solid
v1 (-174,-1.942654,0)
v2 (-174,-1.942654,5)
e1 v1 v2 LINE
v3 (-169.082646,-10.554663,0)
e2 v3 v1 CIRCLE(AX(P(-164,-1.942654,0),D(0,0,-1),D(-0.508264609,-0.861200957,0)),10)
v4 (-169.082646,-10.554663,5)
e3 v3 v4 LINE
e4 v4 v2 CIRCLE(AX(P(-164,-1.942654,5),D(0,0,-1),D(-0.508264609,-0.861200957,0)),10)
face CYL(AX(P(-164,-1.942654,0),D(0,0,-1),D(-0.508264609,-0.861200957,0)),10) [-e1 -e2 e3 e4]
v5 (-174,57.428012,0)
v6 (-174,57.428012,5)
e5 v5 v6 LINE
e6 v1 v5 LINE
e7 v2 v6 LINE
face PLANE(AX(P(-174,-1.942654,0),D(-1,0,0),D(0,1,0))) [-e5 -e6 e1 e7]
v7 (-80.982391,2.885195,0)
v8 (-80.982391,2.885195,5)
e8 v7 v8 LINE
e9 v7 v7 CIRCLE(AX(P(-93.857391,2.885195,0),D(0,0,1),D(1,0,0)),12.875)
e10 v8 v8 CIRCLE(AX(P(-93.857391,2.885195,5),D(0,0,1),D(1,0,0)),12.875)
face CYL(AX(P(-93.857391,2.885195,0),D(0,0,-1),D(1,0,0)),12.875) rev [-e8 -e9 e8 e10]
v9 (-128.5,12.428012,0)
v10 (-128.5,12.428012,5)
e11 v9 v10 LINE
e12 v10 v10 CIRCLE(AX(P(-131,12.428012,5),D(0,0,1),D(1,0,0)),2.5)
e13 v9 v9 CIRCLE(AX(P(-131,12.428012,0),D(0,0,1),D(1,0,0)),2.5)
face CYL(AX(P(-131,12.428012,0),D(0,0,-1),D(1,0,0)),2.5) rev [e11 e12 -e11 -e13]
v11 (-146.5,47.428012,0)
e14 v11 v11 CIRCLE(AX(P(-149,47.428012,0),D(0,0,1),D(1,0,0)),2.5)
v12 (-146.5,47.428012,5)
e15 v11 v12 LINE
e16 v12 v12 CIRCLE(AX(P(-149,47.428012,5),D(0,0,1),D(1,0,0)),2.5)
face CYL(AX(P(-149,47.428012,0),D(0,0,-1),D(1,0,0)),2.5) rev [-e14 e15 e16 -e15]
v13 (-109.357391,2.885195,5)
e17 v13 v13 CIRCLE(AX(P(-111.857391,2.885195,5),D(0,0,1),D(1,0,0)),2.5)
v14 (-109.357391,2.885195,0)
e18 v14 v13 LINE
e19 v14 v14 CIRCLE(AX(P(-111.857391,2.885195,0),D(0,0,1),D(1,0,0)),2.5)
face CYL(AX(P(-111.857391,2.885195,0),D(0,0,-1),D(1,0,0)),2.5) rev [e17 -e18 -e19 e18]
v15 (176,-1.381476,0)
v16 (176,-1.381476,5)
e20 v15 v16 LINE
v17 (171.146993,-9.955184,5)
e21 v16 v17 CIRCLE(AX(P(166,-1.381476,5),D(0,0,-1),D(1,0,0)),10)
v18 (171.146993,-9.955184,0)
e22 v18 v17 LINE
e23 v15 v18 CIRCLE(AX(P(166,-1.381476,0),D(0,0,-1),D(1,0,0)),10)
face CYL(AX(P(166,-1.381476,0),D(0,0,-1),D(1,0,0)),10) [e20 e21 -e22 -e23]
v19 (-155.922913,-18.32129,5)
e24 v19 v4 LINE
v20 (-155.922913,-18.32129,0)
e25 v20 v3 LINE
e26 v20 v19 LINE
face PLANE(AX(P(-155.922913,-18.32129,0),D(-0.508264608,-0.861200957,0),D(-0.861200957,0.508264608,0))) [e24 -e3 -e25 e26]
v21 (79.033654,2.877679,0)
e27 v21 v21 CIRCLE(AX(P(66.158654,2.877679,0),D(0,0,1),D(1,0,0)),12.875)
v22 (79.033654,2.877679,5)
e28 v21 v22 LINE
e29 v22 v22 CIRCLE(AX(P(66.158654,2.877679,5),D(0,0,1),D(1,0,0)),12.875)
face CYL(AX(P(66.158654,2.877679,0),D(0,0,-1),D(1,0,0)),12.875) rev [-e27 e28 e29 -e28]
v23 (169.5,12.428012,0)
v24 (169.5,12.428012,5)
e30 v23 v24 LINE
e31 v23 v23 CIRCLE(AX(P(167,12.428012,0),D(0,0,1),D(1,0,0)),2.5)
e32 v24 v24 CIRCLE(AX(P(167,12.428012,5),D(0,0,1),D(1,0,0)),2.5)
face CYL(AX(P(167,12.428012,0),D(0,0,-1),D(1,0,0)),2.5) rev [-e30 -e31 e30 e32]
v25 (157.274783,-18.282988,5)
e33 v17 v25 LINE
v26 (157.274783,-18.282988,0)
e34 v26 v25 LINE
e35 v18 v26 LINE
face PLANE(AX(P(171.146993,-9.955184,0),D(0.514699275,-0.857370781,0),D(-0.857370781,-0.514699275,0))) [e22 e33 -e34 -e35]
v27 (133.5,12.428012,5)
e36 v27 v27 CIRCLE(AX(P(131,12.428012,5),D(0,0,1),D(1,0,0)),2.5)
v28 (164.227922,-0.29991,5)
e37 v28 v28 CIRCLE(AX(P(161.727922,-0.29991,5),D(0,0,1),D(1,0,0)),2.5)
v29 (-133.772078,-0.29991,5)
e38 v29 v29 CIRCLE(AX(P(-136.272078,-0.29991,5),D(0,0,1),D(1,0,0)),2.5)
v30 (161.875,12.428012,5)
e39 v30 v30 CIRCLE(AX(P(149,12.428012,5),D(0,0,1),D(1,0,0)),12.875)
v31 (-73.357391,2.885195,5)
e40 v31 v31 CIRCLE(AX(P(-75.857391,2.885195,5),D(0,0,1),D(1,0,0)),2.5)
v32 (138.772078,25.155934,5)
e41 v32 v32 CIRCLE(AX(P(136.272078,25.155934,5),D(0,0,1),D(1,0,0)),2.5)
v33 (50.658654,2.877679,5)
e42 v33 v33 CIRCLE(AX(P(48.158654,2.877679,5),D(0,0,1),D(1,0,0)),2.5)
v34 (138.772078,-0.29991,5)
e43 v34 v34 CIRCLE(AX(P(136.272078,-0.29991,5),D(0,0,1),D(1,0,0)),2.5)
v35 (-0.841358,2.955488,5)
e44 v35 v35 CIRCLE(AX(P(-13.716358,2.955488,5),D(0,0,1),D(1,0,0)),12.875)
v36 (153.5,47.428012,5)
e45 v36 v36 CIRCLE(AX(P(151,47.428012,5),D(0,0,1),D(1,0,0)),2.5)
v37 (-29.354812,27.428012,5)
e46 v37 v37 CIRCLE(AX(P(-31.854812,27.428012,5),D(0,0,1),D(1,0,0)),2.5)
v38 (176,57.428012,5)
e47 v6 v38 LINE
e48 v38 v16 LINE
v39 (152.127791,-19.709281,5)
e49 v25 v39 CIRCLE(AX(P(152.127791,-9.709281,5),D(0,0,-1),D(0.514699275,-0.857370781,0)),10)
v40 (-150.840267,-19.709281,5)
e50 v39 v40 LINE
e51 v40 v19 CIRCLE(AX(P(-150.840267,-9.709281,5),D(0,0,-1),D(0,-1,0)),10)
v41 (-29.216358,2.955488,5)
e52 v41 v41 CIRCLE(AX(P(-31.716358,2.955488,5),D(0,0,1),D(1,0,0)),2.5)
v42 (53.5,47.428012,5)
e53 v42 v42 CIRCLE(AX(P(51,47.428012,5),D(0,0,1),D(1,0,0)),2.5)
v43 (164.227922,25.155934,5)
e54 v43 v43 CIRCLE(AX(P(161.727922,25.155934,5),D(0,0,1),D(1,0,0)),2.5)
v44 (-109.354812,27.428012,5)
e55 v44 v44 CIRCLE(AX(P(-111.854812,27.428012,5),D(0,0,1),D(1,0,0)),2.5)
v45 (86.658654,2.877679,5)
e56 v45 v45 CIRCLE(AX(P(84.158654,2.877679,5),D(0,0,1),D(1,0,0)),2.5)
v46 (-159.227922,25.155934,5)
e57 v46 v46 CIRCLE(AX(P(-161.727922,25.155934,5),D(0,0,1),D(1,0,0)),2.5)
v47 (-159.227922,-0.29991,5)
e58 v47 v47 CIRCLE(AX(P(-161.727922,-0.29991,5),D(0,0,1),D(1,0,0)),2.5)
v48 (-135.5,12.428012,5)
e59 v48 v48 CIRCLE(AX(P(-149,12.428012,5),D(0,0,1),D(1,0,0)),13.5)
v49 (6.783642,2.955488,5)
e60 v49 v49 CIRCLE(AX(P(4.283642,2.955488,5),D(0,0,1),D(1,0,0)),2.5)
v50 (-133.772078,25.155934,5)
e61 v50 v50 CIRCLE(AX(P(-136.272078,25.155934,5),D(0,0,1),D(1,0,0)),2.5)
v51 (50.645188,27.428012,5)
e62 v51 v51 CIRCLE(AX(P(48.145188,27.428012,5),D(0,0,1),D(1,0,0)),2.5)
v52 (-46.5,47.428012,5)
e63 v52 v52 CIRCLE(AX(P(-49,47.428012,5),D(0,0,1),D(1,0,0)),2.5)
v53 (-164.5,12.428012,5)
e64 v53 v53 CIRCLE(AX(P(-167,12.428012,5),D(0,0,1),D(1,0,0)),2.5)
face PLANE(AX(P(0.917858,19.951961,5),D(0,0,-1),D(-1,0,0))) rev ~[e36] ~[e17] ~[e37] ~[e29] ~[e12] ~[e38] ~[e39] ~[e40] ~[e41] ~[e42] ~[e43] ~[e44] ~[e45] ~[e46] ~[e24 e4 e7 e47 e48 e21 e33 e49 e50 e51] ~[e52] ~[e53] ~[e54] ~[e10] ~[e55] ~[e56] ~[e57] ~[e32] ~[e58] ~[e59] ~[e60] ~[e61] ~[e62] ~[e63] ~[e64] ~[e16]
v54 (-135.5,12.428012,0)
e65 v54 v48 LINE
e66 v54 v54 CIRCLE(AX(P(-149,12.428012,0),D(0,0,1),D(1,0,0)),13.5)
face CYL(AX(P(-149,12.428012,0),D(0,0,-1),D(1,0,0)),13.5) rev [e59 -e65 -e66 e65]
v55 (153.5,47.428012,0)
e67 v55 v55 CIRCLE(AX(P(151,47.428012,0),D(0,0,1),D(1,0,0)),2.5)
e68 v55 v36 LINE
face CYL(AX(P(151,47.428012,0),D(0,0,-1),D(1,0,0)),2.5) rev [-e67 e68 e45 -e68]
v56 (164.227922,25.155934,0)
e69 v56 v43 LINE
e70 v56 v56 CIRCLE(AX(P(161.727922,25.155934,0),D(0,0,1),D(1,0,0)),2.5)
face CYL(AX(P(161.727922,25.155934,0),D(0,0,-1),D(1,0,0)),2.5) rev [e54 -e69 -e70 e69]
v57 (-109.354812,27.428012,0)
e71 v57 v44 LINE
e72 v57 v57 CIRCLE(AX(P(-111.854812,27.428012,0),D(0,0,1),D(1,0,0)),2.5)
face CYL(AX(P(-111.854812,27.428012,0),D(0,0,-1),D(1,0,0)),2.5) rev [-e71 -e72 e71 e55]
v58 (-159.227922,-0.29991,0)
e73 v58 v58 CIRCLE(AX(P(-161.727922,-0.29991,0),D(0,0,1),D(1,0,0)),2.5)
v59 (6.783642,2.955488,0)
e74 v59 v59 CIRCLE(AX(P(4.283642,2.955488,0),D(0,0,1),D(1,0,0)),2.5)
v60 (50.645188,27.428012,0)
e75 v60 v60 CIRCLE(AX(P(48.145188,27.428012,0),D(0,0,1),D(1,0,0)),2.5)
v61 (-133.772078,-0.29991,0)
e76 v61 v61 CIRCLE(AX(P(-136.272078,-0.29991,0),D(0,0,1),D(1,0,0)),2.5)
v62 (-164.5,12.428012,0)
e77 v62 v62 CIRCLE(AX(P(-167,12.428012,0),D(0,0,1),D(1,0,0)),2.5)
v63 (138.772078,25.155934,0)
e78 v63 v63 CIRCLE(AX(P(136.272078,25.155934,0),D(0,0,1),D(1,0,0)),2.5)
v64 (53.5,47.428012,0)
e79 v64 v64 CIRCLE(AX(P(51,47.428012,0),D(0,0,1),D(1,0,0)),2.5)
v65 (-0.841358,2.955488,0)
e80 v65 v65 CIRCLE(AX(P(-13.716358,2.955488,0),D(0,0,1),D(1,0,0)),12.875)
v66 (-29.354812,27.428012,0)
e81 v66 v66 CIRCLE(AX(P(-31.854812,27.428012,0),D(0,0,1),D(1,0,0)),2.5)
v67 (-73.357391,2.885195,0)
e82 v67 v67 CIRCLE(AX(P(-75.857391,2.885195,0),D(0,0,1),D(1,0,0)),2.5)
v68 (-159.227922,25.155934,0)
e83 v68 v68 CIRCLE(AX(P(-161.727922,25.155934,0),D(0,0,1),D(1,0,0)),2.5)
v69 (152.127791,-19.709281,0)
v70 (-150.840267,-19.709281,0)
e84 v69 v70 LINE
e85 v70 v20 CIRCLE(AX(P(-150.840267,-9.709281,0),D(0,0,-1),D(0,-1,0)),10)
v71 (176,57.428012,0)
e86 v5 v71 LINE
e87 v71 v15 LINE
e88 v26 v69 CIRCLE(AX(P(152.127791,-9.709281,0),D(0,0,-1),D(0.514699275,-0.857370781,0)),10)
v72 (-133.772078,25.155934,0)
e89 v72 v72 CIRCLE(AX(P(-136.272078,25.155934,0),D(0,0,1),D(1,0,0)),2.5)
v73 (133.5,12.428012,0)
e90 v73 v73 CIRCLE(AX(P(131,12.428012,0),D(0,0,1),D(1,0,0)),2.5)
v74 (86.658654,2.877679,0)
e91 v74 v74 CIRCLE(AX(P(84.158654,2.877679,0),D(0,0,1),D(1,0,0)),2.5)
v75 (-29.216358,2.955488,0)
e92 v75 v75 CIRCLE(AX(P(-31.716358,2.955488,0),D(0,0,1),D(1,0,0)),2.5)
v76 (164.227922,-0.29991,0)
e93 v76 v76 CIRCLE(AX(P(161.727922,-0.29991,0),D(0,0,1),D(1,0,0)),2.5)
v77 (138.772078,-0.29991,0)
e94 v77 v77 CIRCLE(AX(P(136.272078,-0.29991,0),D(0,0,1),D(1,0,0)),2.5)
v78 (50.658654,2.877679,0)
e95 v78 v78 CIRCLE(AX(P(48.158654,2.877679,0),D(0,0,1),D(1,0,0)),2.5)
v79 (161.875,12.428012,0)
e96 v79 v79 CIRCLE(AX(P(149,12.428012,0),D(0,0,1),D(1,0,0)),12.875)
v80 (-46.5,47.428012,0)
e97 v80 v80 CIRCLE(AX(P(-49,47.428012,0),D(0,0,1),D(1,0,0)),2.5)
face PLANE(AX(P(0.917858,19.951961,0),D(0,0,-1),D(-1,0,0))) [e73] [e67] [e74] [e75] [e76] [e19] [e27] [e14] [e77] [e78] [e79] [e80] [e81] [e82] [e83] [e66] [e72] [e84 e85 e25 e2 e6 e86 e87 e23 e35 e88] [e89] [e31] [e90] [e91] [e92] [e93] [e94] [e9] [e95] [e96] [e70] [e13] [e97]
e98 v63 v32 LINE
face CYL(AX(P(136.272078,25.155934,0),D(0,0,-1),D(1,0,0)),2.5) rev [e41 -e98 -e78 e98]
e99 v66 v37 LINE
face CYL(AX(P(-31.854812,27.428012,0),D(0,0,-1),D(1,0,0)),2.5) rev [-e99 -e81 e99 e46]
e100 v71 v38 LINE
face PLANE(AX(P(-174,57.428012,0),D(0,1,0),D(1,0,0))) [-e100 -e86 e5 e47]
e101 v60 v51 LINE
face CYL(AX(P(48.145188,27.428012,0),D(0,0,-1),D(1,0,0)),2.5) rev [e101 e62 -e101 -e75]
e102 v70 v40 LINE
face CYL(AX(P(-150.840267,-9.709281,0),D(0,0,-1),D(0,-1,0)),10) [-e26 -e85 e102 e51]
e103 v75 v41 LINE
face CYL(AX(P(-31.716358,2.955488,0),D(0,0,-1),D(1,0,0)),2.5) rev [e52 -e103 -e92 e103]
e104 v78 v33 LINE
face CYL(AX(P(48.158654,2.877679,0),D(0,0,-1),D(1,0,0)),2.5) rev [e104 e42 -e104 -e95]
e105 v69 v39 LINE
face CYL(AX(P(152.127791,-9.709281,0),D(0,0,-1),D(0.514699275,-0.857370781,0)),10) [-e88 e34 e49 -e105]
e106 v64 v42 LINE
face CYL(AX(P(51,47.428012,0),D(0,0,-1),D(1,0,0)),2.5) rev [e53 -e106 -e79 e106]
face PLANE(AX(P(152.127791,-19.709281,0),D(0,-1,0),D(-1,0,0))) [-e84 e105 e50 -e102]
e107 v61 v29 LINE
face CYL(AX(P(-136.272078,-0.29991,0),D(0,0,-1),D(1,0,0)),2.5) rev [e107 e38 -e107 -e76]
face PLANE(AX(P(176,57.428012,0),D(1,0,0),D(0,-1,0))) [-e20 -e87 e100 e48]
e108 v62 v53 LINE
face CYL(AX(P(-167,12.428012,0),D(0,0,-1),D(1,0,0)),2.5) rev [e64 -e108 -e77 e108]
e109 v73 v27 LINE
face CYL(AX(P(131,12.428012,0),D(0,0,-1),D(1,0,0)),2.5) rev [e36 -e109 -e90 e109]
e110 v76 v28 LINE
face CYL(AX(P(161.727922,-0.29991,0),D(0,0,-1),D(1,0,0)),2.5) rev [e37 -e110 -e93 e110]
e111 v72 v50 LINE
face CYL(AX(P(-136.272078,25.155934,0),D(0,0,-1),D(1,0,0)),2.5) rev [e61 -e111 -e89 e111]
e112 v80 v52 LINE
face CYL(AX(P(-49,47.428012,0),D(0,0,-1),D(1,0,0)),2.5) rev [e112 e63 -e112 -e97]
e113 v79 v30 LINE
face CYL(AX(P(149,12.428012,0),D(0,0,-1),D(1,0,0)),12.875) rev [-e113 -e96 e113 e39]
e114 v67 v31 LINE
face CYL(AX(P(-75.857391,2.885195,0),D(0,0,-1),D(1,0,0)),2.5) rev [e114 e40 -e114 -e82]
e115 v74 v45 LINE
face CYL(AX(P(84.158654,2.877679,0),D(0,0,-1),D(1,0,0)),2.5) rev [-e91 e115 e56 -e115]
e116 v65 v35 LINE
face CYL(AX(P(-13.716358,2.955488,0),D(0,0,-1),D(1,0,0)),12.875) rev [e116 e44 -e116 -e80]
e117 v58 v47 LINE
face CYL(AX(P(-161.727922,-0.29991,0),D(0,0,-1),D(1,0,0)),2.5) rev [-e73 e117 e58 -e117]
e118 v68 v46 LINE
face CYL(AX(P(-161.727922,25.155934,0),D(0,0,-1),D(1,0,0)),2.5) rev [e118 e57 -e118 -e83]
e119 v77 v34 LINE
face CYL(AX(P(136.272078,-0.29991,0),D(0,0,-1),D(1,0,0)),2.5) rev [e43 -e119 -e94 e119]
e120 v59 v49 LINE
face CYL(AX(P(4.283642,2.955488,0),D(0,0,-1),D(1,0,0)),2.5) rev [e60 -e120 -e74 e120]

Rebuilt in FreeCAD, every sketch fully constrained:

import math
import FreeCAD as App
import Part
import Sketcher

V = App.Vector

doc = App.newDocument("Part")
body = doc.addObject("PartDesign::Body", "Body")

# Sketch on XY plane
sketch1 = doc.addObject("Sketcher::SketchObject", "Sketch")
body.addObject(sketch1)
sketch1.AttachmentSupport = (doc.XY_Plane, [""])
sketch1.MapMode = "FlatFace"
sketch1.addGeometry([
    Part.LineSegment(V(176, 57.428012, 0), V(-174, 57.428012, 0)),  # 0
    Part.LineSegment(V(-174, 57.428012, 0), V(-174, -1.942654, 0)),  # 1
    Part.ArcOfCircle(Part.Circle(V(-164, -1.942654, 0), V(0, 0, 1), 10), math.radians(-180), math.radians(-120.548305)),  # 2
    Part.LineSegment(V(-169.082646, -10.554663, 0), V(-155.922913, -18.32129, 0)),  # 3
    Part.ArcOfCircle(Part.Circle(V(-150.840267, -9.709281, 0), V(0, 0, 1), 10), math.radians(-120.548305), math.radians(-90)),  # 4
    Part.LineSegment(V(-150.840267, -19.709281, 0), V(152.127791, -19.709281, 0)),  # 5
    Part.ArcOfCircle(Part.Circle(V(152.127791, -9.709281, 0), V(0, 0, 1), 10), math.radians(-90), math.radians(-59.022644)),  # 6
    Part.LineSegment(V(157.274783, -18.282988, 0), V(171.146993, -9.955184, 0)),  # 7
    Part.ArcOfCircle(Part.Circle(V(166, -1.381476, 0), V(0, 0, 1), 10), math.radians(-59.022644), math.radians(0)),  # 8
    Part.LineSegment(V(176, -1.381476, 0), V(176, 57.428012, 0)),  # 9
    Part.Circle(V(161.727922, -0.29991, 0), V(0, 0, 1), 2.5),  # 10
    Part.Circle(V(136.272078, -0.29991, 0), V(0, 0, 1), 2.5),  # 11
    Part.Circle(V(84.158654, 2.877679, 0), V(0, 0, 1), 2.5),  # 12
    Part.Circle(V(66.158654, 2.877679, 0), V(0, 0, 1), 12.875),  # 13
    Part.Circle(V(48.158654, 2.877679, 0), V(0, 0, 1), 2.5),  # 14
    Part.Circle(V(4.283642, 2.955488, 0), V(0, 0, 1), 2.5),  # 15
    Part.Circle(V(167, 12.428012, 0), V(0, 0, 1), 2.5),  # 16
    Part.Circle(V(149, 12.428012, 0), V(0, 0, 1), 12.875),  # 17
    Part.Circle(V(131, 12.428012, 0), V(0, 0, 1), 2.5),  # 18
    Part.Circle(V(-13.716358, 2.955488, 0), V(0, 0, 1), 12.875),  # 19
    Part.Circle(V(-31.716358, 2.955488, 0), V(0, 0, 1), 2.5),  # 20
    Part.Circle(V(-75.857391, 2.885195, 0), V(0, 0, 1), 2.5),  # 21
    Part.Circle(V(-93.857391, 2.885195, 0), V(0, 0, 1), 12.875),  # 22
    Part.Circle(V(-111.857391, 2.885195, 0), V(0, 0, 1), 2.5),  # 23
    Part.Circle(V(-136.272078, -0.29991, 0), V(0, 0, 1), 2.5),  # 24
    Part.Circle(V(-161.727922, -0.29991, 0), V(0, 0, 1), 2.5),  # 25
    Part.Circle(V(-131, 12.428012, 0), V(0, 0, 1), 2.5),  # 26
    Part.Circle(V(-149, 12.428012, 0), V(0, 0, 1), 13.5),  # 27
    Part.Circle(V(-167, 12.428012, 0), V(0, 0, 1), 2.5),  # 28
    Part.Circle(V(161.727922, 25.155934, 0), V(0, 0, 1), 2.5),  # 29
    Part.Circle(V(136.272078, 25.155934, 0), V(0, 0, 1), 2.5),  # 30
    Part.Circle(V(48.145188, 27.428012, 0), V(0, 0, 1), 2.5),  # 31
    Part.Circle(V(151, 47.428012, 0), V(0, 0, 1), 2.5),  # 32
    Part.Circle(V(51, 47.428012, 0), V(0, 0, 1), 2.5),  # 33
    Part.Circle(V(-31.854812, 27.428012, 0), V(0, 0, 1), 2.5),  # 34
    Part.Circle(V(-111.854812, 27.428012, 0), V(0, 0, 1), 2.5),  # 35
    Part.Circle(V(-136.272078, 25.155934, 0), V(0, 0, 1), 2.5),  # 36
    Part.Circle(V(-161.727922, 25.155934, 0), V(0, 0, 1), 2.5),  # 37
    Part.Circle(V(-49, 47.428012, 0), V(0, 0, 1), 2.5),  # 38
    Part.Circle(V(-149, 47.428012, 0), V(0, 0, 1), 2.5),  # 39
], False)
sketch1.addConstraint([
    Sketcher.Constraint("Coincident", 0, 2, 1, 1),
    Sketcher.Constraint("Tangent", 1, 2, 2, 1),
    Sketcher.Constraint("Tangent", 2, 2, 3, 1),
    Sketcher.Constraint("Tangent", 3, 2, 4, 1),
    Sketcher.Constraint("Tangent", 4, 2, 5, 1),
    Sketcher.Constraint("Tangent", 5, 2, 6, 1),
    Sketcher.Constraint("Tangent", 6, 2, 7, 1),
    Sketcher.Constraint("Tangent", 7, 2, 8, 1),
    Sketcher.Constraint("Tangent", 8, 2, 9, 1),
    Sketcher.Constraint("Coincident", 9, 2, 0, 1),
    Sketcher.Constraint("Horizontal", 0),
    Sketcher.Constraint("Vertical", 1),
    Sketcher.Constraint("Horizontal", 5),
    Sketcher.Constraint("Vertical", 9),
    Sketcher.Constraint("Equal", 2, 4),
    Sketcher.Constraint("Equal", 4, 6),
    Sketcher.Constraint("Equal", 6, 8),
    Sketcher.Constraint("Equal", 10, 11),
    Sketcher.Constraint("Equal", 11, 12),
    Sketcher.Constraint("Equal", 12, 14),
    Sketcher.Constraint("Equal", 14, 15),
    Sketcher.Constraint("Equal", 15, 16),
    Sketcher.Constraint("Equal", 13, 17),
    Sketcher.Constraint("Equal", 16, 18),
    Sketcher.Constraint("Equal", 17, 19),
    Sketcher.Constraint("Equal", 18, 20),
    Sketcher.Constraint("Equal", 20, 21),
    Sketcher.Constraint("Equal", 19, 22),
    Sketcher.Constraint("Equal", 21, 23),
    Sketcher.Constraint("Equal", 23, 24),
    Sketcher.Constraint("Equal", 24, 25),
    Sketcher.Constraint("Equal", 25, 26),
    Sketcher.Constraint("Equal", 26, 28),
    Sketcher.Constraint("Equal", 28, 29),
    Sketcher.Constraint("Equal", 29, 30),
    Sketcher.Constraint("Equal", 30, 31),
    Sketcher.Constraint("Equal", 31, 32),
    Sketcher.Constraint("Equal", 32, 33),
    Sketcher.Constraint("Equal", 33, 34),
    Sketcher.Constraint("Equal", 34, 35),
    Sketcher.Constraint("Equal", 35, 36),
    Sketcher.Constraint("Equal", 36, 37),
    Sketcher.Constraint("Equal", 37, 38),
    Sketcher.Constraint("Equal", 38, 39),
    Sketcher.Constraint("Symmetric", 11, 3, 24, 3, -2),
    Sketcher.Constraint("Symmetric", 10, 3, 25, 3, -2),
    Sketcher.Constraint("Symmetric", 18, 3, 26, 3, -2),
    Sketcher.Constraint("Symmetric", 17, 3, 27, 3, -2),
    Sketcher.Constraint("Symmetric", 16, 3, 28, 3, -2),
    Sketcher.Constraint("Symmetric", 30, 3, 36, 3, -2),
    Sketcher.Constraint("Symmetric", 29, 3, 37, 3, -2),
    Sketcher.Constraint("Horizontal", 10, 3, 11, 3),
    Sketcher.Constraint("Horizontal", 12, 3, 13, 3),
    Sketcher.Constraint("Horizontal", 13, 3, 14, 3),
    Sketcher.Constraint("Horizontal", 16, 3, 17, 3),
    Sketcher.Constraint("Horizontal", 17, 3, 18, 3),
    Sketcher.Constraint("Horizontal", 15, 3, 19, 3),
    Sketcher.Constraint("Horizontal", 19, 3, 20, 3),
    Sketcher.Constraint("Horizontal", 21, 3, 22, 3),
    Sketcher.Constraint("Horizontal", 22, 3, 23, 3),
    Sketcher.Constraint("Horizontal", 29, 3, 30, 3),
    Sketcher.Constraint("Horizontal", 32, 3, 33, 3),
    Sketcher.Constraint("Horizontal", 31, 3, 34, 3),
    Sketcher.Constraint("Horizontal", 34, 3, 35, 3),
    Sketcher.Constraint("Horizontal", 33, 3, 38, 3),
    Sketcher.Constraint("Horizontal", 38, 3, 39, 3),
    Sketcher.Constraint("Vertical", 10, 3, 29, 3),
    Sketcher.Constraint("Vertical", 11, 3, 30, 3),
    Sketcher.Constraint("Vertical", 27, 3, 39, 3),
    Sketcher.Constraint("Diameter", 10, 5.0),
    Sketcher.Constraint("Diameter", 27, 27.0),
    Sketcher.Constraint("Radius", 2, 10.0),
    Sketcher.Constraint("Diameter", 13, 25.75),
    Sketcher.Constraint("DistanceX", 0, 2, 0, 1, 350.0),
    Sketcher.Constraint("DistanceX", 2, 3, -1, 1, 164.0),
    Sketcher.Constraint("DistanceX", -1, 1, 16, 3, 167.0),
    Sketcher.Constraint("DistanceX", -1, 1, 17, 3, 149.0),
    Sketcher.Constraint("DistanceX", -1, 1, 18, 3, 131.0),
    Sketcher.Constraint("DistanceX", -1, 1, 32, 3, 151.0),
    Sketcher.Constraint("DistanceX", -1, 1, 33, 3, 51.0),
    Sketcher.Constraint("DistanceX", 38, 3, -1, 1, 49.0),
    Sketcher.Constraint("DistanceX", 13, 3, 12, 3, 18.0),
    Sketcher.Constraint("DistanceX", 14, 3, 13, 3, 18.0),
    Sketcher.Constraint("DistanceX", 19, 3, 15, 3, 18.0),
    Sketcher.Constraint("DistanceX", 20, 3, 19, 3, 18.0),
    Sketcher.Constraint("DistanceX", 22, 3, 21, 3, 18.0),
    Sketcher.Constraint("DistanceX", 23, 3, 22, 3, 18.0),
    Sketcher.Constraint("DistanceY", 17, 3, 32, 3, 35.0),
    Sketcher.Constraint("DistanceY", 31, 3, 33, 3, 20.0),
    Sketcher.Constraint("DistanceY", 39, 3, 0, 2, 10.0),
    Sketcher.Constraint("DistanceX", 5, 1, 5, 2, 302.968058),
    Sketcher.Constraint("DistanceY", 11, 3, 15, 3, 3.255398),
    Sketcher.Constraint("Distance", 7, 16.179942),
    Sketcher.Constraint("DistanceY", 1, 2, 1, 1, 59.370665),
    Sketcher.Constraint("DistanceY", 9, 1, 9, 2, 58.809488),
    Sketcher.Constraint("DistanceY", 4, 3, -1, 1, 9.709281),
    Sketcher.Constraint("DistanceX", -1, 1, 6, 3, 152.127791),
    Sketcher.Constraint("DistanceY", 10, 3, -1, 1, 0.29991),
    Sketcher.Constraint("DistanceY", -1, 1, 12, 3, 2.877679),
    Sketcher.Constraint("DistanceX", -1, 1, 15, 3, 4.283642),
    Sketcher.Constraint("DistanceX", 21, 3, -1, 1, 75.857391),
    Sketcher.Constraint("DistanceX", 6, 3, 10, 3, 9.600131),
    Sketcher.Constraint("DistanceX", 12, 3, 10, 3, 77.569268),
    Sketcher.Constraint("DistanceY", 2, 3, 21, 3, 4.827849),
    Sketcher.Constraint("DistanceX", 4, 3, 24, 3, 14.568189),
    Sketcher.Constraint("DistanceY", 8, 3, 29, 3, 26.53741),
    Sketcher.Constraint("DistanceX", 21, 3, 34, 3, 44.002579),
    Sketcher.Constraint("DistanceX", 23, 3, 35, 3, 0.002579),
    Sketcher.Constraint("DistanceX", -1, 1, 31, 3, 48.145188),
])
pad1 = doc.addObject("PartDesign::Pad", "Pad")
body.addObject(pad1)
pad1.Profile = sketch1
pad1.Length = 5

doc.recompute()
